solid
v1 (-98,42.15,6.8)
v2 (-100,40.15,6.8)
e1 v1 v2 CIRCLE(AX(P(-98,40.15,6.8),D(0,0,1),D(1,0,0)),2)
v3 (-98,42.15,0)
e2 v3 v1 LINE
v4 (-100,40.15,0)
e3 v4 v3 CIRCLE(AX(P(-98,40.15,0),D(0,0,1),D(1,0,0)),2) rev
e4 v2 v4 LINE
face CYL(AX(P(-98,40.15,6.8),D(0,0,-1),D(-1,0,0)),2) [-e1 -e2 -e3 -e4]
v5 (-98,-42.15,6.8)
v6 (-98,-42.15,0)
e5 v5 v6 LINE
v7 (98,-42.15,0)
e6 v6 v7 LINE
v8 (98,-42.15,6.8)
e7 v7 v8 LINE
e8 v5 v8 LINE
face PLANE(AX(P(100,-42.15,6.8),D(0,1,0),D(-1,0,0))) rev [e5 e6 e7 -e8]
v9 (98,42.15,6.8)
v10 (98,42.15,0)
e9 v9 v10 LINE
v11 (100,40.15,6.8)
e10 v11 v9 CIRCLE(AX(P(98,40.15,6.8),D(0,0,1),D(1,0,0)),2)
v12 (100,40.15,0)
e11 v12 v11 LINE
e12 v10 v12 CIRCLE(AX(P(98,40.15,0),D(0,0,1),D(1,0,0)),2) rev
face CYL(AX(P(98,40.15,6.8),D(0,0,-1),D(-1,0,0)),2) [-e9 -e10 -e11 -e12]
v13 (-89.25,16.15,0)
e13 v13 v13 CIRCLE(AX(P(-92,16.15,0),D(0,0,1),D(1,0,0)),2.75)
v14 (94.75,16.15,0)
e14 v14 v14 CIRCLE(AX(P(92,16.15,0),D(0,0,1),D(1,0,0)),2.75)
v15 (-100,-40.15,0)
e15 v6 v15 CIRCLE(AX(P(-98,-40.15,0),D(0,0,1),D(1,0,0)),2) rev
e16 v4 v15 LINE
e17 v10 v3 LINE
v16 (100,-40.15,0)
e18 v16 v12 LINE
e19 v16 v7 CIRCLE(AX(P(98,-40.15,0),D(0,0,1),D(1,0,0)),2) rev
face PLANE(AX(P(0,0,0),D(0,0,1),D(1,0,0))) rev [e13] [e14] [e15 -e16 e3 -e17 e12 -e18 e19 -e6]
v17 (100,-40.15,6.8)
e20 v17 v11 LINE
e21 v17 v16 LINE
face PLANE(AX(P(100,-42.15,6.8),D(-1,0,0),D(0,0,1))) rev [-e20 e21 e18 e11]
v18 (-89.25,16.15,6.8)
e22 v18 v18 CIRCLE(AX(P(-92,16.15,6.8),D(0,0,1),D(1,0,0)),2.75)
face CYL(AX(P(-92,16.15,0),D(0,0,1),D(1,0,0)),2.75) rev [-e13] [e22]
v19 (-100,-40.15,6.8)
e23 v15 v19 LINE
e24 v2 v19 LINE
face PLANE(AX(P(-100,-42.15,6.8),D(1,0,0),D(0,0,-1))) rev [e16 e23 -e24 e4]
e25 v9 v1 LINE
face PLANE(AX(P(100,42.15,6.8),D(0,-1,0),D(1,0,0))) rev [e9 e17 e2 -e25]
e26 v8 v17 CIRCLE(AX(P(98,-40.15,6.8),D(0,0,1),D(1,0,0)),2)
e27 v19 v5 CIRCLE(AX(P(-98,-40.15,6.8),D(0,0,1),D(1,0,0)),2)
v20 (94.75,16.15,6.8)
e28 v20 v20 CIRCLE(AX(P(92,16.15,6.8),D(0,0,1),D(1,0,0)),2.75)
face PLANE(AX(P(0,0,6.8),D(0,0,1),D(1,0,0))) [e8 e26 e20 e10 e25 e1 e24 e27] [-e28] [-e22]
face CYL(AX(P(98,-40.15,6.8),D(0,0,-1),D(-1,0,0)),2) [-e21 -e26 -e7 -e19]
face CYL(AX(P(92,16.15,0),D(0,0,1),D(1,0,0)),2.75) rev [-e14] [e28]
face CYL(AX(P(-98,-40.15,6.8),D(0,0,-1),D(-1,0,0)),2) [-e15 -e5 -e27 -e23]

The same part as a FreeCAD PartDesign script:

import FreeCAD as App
import Part
import Sketcher
from FreeCAD import Vector
Q = App.Units.Quantity


def edges_at(feature, points):
    """Names of the edges that pass closest to the given points."""
    edges = feature.Shape.Edges
    near = lambda p: min(range(len(edges)), key=lambda i: edges[i].distToShape(Part.Vertex(*p))[0])
    return sorted({f"Edge{near(p) + 1}" for p in points})


def add_polygon(sketch, points):
    """Adds a closed chain of lines whose ends are joined by coincident constraints."""
    first, n = sketch.GeometryCount, len(points)
    for a, b in zip(points, points[1:] + points[:1]):
        sketch.addGeometry(Part.LineSegment(App.Vector(*a, 0), App.Vector(*b, 0)), False)
    for i in range(n):
        sketch.addConstraint(Sketcher.Constraint("Coincident", first + i, 2, first + (i + 1) % n, 1))

doc = App.newDocument("Part")
params = doc.addObject("Spreadsheet::Sheet", "Params")
for row, (alias, value) in enumerate([
    ("sketch1_width", "200 mm"),
    ("sketch1_height", "84.3 mm"),
    ("pad1_length", "6.8 mm"),
    ("sketch2_diameter", "5.5 mm"),
    ("pocket1_length", "6.8 mm"),
    ("fillet_radius", "2 mm"),
], start=1):
    params.set(f"A{row}", alias)
    params.set(f"B{row}", "=" + value)
    params.setAlias(f"B{row}", alias)

body = doc.addObject("PartDesign::Body", "Body")

# Sketch on XY plane
sketch1 = doc.addObject("Sketcher::SketchObject", "Sketch")
body.addObject(sketch1)
sketch1.AttachmentSupport = (doc.XY_Plane, [""])
sketch1.MapMode = "FlatFace"
add_polygon(sketch1, [(-100, 42.15), (-100, -42.15), (100, -42.15), (100, 42.15)])  # lines 0-3
sketch1.addConstraint(Sketcher.Constraint("Vertical", 0))
sketch1.addConstraint(Sketcher.Constraint("Horizontal", 1))
sketch1.addConstraint(Sketcher.Constraint("Vertical", 2))
sketch1.addConstraint(Sketcher.Constraint("Horizontal", 3))
sketch1.addConstraint(Sketcher.Constraint("Symmetric", 0, 2, 2, 2, -1, 1))
sketch1.addConstraint(Sketcher.Constraint("DistanceX", 1, 1, 1, 2, Q("200 mm")))
sketch1.addConstraint(Sketcher.Constraint("DistanceY", 0, 2, 0, 1, Q("84.3 mm")))
sketch1.setExpression("Constraints[9]", "Params.sketch1_width")
sketch1.setExpression("Constraints[10]", "Params.sketch1_height")
pad1 = doc.addObject("PartDesign::Pad", "Pad")
body.addObject(pad1)
pad1.Profile = sketch1
pad1.setExpression("Length", "Params.pad1_length")

# Sketch on XY plane
sketch2 = doc.addObject("Sketcher::SketchObject", "Sketch001")
body.addObject(sketch2)
sketch2.AttachmentSupport = (doc.XY_Plane, [""])
sketch2.MapMode = "FlatFace"
sketch2.AttachmentOffset = App.Placement(Vector(0, 0, 6.8), App.Rotation())
sketch2.addGeometry(Part.Circle(Vector(-92, 16.15, 0), Vector(0, 0, 1), 2.75), False)
sketch2.addGeometry(Part.Circle(Vector(92, 16.15, 0), Vector(0, 0, 1), 2.75), False)
sketch2.addConstraint(Sketcher.Constraint("Equal", 0, 1))
sketch2.addConstraint(Sketcher.Constraint("Symmetric", 0, 3, 1, 3, -2))
sketch2.addConstraint(Sketcher.Constraint("Diameter", 0, Q("5.5 mm")))
sketch2.addConstraint(Sketcher.Constraint("DistanceX", 0, 3, -1, 1, Q("92 mm")))
sketch2.addConstraint(Sketcher.Constraint("DistanceY", -1, 1, 0, 3, Q("16.15 mm")))
sketch2.setExpression("Constraints[2]", "Params.sketch2_diameter")
pocket1 = doc.addObject("PartDesign::Pocket", "Pocket")
body.addObject(pocket1)
pocket1.Profile = sketch2
pocket1.setExpression("Length", "Params.pocket1_length")
doc.recompute()

fillet = doc.addObject("PartDesign::Fillet", "Fillet")
body.addObject(fillet)
fillet.Base = (pocket1, edges_at(pocket1, [
    (-100, 42.15, 3.4),
    (100, 42.15, 3.4),
    (100, -42.15, 3.4),
    (-100, -42.15, 3.4),
]))
fillet.setExpression("Radius", "Params.fillet_radius")

doc.recompute()
